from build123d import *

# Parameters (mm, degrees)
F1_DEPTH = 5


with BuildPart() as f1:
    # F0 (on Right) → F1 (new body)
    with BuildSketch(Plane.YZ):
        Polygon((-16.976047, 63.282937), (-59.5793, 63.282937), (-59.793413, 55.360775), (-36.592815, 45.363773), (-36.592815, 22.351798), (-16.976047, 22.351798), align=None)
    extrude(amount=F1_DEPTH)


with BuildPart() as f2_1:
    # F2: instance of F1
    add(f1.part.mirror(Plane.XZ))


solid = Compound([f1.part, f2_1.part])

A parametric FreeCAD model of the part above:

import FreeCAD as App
import Part
import Sketcher

V = App.Vector


def add_polygon(sketch, points):
    """Adds a closed chain of lines whose ends are joined by coincident constraints."""
    first, n = sketch.GeometryCount, len(points)
    for a, b in zip(points, points[1:] + points[:1]):
        sketch.addGeometry(Part.LineSegment(App.Vector(*a, 0), App.Vector(*b, 0)), False)
    for i in range(n):
        sketch.addConstraint(Sketcher.Constraint("Coincident", first + i, 2, first + (i + 1) % n, 1))

doc = App.newDocument("Part")
body = doc.addObject("PartDesign::Body", "Body")

# Sketch on YZ plane
sketch1 = body.newObject("Sketcher::SketchObject", "Sketch")
sketch1.AttachmentSupport = (doc.getObject("YZ_Plane"), [""])
sketch1.MapMode = "FlatFace"
add_polygon(sketch1, [(-17, 63), (-60, 63), (-60, 55), (-37, 45), (-37, 22), (-17, 22)])  # lines 0-5
sketch1.addConstraint(Sketcher.Constraint("Horizontal", 0))
sketch1.addConstraint(Sketcher.Constraint("Vertical", 3))
sketch1.addConstraint(Sketcher.Constraint("Horizontal", 4))
sketch1.addConstraint(Sketcher.Constraint("Vertical", 5))
sketch1.addConstraint(Sketcher.Constraint("DistanceY", 2, 2, 1, 2, 9.997002))
sketch1.addConstraint(Sketcher.Constraint("DistanceX", 4, 1, 4, 2, 19.616768))
sketch1.addConstraint(Sketcher.Constraint("DistanceY", 5, 1, 5, 2, 40.931139))
sketch1.addConstraint(Sketcher.Constraint("DistanceX", 0, 2, -1, 1, 59.5793))
sketch1.addConstraint(Sketcher.Constraint("DistanceX", 0, 2, 0, 1, 42.603253))
sketch1.addConstraint(Sketcher.Constraint("DistanceY", 3, 2, 3, 1, 23.011975))
sketch1.addConstraint(Sketcher.Constraint("Distance", 1, 7.925055))
sketch1.addConstraint(Sketcher.Constraint("DistanceY", -1, 1, 0, 2, 63.282937))
pad1 = body.newObject("PartDesign::Pad", "Pad")
pad1.Profile = sketch1
pad1.Length = 5
body2 = doc.addObject("PartDesign::Body", "Body001")
doc.recompute()

mirroring = doc.addObject("Part::Mirroring", "Mirroring")
mirroring.Source = body
mirroring.Base = V(0, 0, 0)
mirroring.Normal = V(0, -1, 0)
body2.BaseFeature = mirroring
doc.recompute()
mirroring.Visibility = False

doc.recompute()
